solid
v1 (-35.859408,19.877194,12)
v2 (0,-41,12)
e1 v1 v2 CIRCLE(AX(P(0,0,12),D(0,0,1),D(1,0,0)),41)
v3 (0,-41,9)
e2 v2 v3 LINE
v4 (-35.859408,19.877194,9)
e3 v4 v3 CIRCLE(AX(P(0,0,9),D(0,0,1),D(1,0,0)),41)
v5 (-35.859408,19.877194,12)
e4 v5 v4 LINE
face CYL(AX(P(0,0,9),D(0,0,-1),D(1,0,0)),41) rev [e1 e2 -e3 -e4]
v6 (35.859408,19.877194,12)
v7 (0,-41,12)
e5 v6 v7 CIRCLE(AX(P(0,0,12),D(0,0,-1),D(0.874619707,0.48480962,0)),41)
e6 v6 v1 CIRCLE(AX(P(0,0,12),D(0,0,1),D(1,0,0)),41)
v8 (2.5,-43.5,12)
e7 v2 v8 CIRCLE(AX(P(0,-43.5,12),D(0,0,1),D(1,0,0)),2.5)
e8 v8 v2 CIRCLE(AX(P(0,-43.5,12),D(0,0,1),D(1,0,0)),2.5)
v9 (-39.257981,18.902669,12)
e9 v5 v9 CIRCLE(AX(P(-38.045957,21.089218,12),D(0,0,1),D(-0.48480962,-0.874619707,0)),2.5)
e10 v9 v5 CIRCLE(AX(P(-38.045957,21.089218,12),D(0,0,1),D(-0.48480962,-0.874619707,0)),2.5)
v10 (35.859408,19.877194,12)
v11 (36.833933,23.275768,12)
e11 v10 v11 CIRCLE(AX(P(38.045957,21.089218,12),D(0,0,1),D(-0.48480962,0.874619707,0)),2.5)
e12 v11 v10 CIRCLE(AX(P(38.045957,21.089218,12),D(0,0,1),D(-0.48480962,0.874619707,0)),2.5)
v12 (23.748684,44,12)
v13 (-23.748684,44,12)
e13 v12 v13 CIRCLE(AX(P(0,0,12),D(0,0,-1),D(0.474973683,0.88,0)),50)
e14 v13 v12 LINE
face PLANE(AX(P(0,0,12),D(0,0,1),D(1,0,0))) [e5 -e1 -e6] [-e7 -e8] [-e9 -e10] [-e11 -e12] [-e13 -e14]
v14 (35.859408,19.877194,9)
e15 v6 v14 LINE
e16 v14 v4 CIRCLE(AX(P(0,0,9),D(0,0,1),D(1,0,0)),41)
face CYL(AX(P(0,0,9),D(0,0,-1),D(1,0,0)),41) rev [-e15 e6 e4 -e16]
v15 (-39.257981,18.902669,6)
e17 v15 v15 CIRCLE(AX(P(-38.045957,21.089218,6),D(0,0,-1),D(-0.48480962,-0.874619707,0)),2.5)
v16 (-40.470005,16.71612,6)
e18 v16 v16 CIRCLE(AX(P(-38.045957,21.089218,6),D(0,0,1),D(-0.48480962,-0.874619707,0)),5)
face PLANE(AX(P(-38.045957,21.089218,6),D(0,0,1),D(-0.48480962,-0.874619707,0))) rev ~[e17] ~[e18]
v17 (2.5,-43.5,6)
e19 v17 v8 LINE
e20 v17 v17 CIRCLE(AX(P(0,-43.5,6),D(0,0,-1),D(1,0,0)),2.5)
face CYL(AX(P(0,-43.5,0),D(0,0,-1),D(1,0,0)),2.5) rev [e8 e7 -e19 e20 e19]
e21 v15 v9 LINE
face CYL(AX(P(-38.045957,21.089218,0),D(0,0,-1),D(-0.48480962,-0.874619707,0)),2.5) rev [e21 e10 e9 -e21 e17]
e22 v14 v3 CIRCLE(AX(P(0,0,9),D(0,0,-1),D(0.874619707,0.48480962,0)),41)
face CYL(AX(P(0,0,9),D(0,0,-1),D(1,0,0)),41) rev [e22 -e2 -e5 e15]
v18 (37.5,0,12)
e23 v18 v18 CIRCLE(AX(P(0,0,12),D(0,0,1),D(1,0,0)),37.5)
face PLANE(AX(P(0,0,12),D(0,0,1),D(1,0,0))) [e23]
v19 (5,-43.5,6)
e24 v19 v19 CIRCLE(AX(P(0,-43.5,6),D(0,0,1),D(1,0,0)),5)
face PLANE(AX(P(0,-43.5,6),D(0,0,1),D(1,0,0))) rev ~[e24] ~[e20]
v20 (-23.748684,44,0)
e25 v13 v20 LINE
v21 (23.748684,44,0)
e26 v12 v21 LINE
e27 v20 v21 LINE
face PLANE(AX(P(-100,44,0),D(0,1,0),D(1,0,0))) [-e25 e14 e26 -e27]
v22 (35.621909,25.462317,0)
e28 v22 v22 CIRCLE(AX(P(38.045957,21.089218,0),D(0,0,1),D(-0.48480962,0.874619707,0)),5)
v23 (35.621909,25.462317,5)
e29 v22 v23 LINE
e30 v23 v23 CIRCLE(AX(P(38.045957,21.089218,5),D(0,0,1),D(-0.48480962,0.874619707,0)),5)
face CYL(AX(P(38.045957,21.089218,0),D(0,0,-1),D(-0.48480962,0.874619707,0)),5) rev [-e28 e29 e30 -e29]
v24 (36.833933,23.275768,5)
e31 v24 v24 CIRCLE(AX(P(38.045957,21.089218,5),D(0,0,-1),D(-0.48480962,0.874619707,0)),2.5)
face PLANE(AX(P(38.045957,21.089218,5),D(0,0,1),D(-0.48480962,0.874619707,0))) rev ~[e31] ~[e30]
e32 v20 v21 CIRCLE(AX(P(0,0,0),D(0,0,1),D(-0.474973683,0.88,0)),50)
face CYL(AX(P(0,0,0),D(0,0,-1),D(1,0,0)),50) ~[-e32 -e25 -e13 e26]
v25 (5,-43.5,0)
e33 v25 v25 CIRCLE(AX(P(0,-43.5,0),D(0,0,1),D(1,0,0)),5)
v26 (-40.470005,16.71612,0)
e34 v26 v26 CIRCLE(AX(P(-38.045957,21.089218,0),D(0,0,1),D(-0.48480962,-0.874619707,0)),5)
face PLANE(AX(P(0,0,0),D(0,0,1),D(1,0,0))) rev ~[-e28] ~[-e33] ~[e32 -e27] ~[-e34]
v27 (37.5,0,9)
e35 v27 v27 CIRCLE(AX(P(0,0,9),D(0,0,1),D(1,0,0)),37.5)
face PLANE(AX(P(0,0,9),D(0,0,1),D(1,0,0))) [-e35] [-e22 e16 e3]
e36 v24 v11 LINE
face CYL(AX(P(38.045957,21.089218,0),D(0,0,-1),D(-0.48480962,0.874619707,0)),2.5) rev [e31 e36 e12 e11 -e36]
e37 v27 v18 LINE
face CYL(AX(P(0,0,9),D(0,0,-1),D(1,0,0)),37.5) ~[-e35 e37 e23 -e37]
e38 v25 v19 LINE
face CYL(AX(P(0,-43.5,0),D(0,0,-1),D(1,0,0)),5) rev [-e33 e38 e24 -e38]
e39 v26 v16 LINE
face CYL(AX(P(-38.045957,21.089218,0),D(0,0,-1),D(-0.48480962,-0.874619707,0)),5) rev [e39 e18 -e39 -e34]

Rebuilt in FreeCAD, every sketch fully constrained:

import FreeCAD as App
import Part
import Sketcher
from FreeCAD import Vector

doc = App.newDocument("Part")
body = doc.addObject("PartDesign::Body", "Body")

sketch1 = body.newObject("Sketcher::SketchObject", "Sketch")
sketch1.AttachmentSupport = (doc.getObject("XY_Plane"), [""])
sketch1.MapMode = "FlatFace"
sketch1.addGeometry(Part.Circle(Vector(0, -44, 0), Vector(0, 0, 1), 5), False)
sketch1.addConstraint([
    Sketcher.Constraint("PointOnObject", 0, 3, -2),
    Sketcher.Constraint("Diameter", 0, 10.0),
    Sketcher.Constraint("DistanceY", 0, 3, -1, 1, 43.5),
])
pad1 = body.newObject("PartDesign::Pad", "Pad")
pad1.Profile = sketch1
pad1.Length = 5
body2 = doc.addObject("PartDesign::Body", "Body001")
doc.recompute()

body.Placement = App.Placement(Vector(0, 0, 0), App.Rotation(Vector(0, 0, 1), 119))
boolean = body2.newObject("PartDesign::Boolean", "Boolean")
boolean.Type = "Fuse"
boolean.addObjects([body])
body3 = doc.addObject("PartDesign::Body", "Body002")

sketch2 = body3.newObject("Sketcher::SketchObject", "Sketch001")
sketch2.AttachmentSupport = (doc.getObject("XY_Plane002"), [""])
sketch2.MapMode = "FlatFace"
sketch2.addGeometry(Part.Circle(Vector(0, -44, 0), Vector(0, 0, 1), 5), False)
sketch2.addConstraint([
    Sketcher.Constraint("PointOnObject", 0, 3, -2),
    Sketcher.Constraint("Diameter", 0, 10.0),
    Sketcher.Constraint("DistanceY", 0, 3, -1, 1, 43.5),
])
pad2 = body3.newObject("PartDesign::Pad", "Pad001")
pad2.Profile = sketch2
pad2.Length = 6
body4 = doc.addObject("PartDesign::Body", "Body003")
doc.recompute()

body3.Placement = App.Placement(Vector(0, 0, 0), App.Rotation(Vector(0, 0, -1), 119))
boolean2 = body4.newObject("PartDesign::Boolean", "Boolean001")
boolean2.Type = "Fuse"
boolean2.addObjects([body3])
body5 = doc.addObject("PartDesign::Body", "Body004")
body5.AllowCompound = True

sketch3 = body5.newObject("Sketcher::SketchObject", "Sketch002")
sketch3.AttachmentSupport = (doc.getObject("XY_Plane004"), [""])
sketch3.MapMode = "FlatFace"
sketch3.addGeometry(Part.Circle(Vector(0, -44, 0), Vector(0, 0, 1), 5), False)
sketch3.addConstraint([
    Sketcher.Constraint("PointOnObject", 0, 3, -2),
    Sketcher.Constraint("Diameter", 0, 10.0),
    Sketcher.Constraint("DistanceY", 0, 3, -1, 1, 43.5),
])
pad3 = body5.newObject("PartDesign::Pad", "Pad002")
pad3.Profile = sketch3
pad3.Length = 6
doc.recompute()

boolean3 = body5.newObject("PartDesign::Boolean", "Boolean002")
boolean3.Type = "Fuse"
boolean3.addObjects([body2])
doc.recompute()

boolean4 = body5.newObject("PartDesign::Boolean", "Boolean003")
boolean4.Type = "Fuse"
boolean4.addObjects([body4])
body6 = doc.addObject("PartDesign::Body", "Body005")

sketch4 = body6.newObject("Sketcher::SketchObject", "Sketch003")
sketch4.AttachmentSupport = (doc.getObject("XY_Plane005"), [""])
sketch4.MapMode = "FlatFace"
sketch4.addGeometry(Part.Circle(Vector(0, -43.5, 0), Vector(0, 0, 1), 2.5), False)
sketch4.addConstraint([
    Sketcher.Constraint("PointOnObject", 0, 3, -2),
    Sketcher.Constraint("Diameter", 0, 5.0),
    Sketcher.Constraint("DistanceY", 0, 3, -1, 1, 43.5),
])
pad4 = body6.newObject("PartDesign::Pad", "Pad003")
pad4.Profile = sketch4
pad4.Length = 12
body7 = doc.addObject("PartDesign::Body", "Body006")
doc.recompute()

body6.Placement = App.Placement(Vector(0, 0, 0), App.Rotation(Vector(0, 0, 1), 119))
boolean5 = body7.newObject("PartDesign::Boolean", "Boolean004")
boolean5.Type = "Fuse"
boolean5.addObjects([body6])
body8 = doc.addObject("PartDesign::Body", "Body007")

sketch5 = body8.newObject("Sketcher::SketchObject", "Sketch004")
sketch5.AttachmentSupport = (doc.getObject("XY_Plane007"), [""])
sketch5.MapMode = "FlatFace"
sketch5.addGeometry(Part.Circle(Vector(0, -43.5, 0), Vector(0, 0, 1), 2.5), False)
sketch5.addConstraint([
    Sketcher.Constraint("PointOnObject", 0, 3, -2),
    Sketcher.Constraint("Diameter", 0, 5.0),
    Sketcher.Constraint("DistanceY", 0, 3, -1, 1, 43.5),
])
pad5 = body8.newObject("PartDesign::Pad", "Pad004")
pad5.Profile = sketch5
pad5.Length = 12
body9 = doc.addObject("PartDesign::Body", "Body008")
doc.recompute()

body8.Placement = App.Placement(Vector(0, 0, 0), App.Rotation(Vector(0, 0, 1), 241))
boolean6 = body9.newObject("PartDesign::Boolean", "Boolean005")
boolean6.Type = "Fuse"
boolean6.addObjects([body8])
body10 = doc.addObject("PartDesign::Body", "Body009")
body10.AllowCompound = True

sketch6 = body10.newObject("Sketcher::SketchObject", "Sketch005")
sketch6.AttachmentSupport = (doc.getObject("XY_Plane009"), [""])
sketch6.MapMode = "FlatFace"
sketch6.addGeometry(Part.Circle(Vector(0, -43.5, 0), Vector(0, 0, 1), 2.5), False)
sketch6.addConstraint([
    Sketcher.Constraint("PointOnObject", 0, 3, -2),
    Sketcher.Constraint("Diameter", 0, 5.0),
    Sketcher.Constraint("DistanceY", 0, 3, -1, 1, 43.5),
])
pad6 = body10.newObject("PartDesign::Pad", "Pad005")
pad6.Profile = sketch6
pad6.Length = 12
doc.recompute()

boolean7 = body10.newObject("PartDesign::Boolean", "Boolean006")
boolean7.Type = "Fuse"
boolean7.addObjects([body7])
doc.recompute()

boolean8 = body10.newObject("PartDesign::Boolean", "Boolean007")
boolean8.Type = "Fuse"
boolean8.addObjects([body9])
body11 = doc.addObject("PartDesign::Body", "Body010")

sketch7 = body11.newObject("Sketcher::SketchObject", "Sketch006")
sketch7.AttachmentSupport = (doc.getObject("XY_Plane010"), [""])
sketch7.MapMode = "FlatFace"
sketch7.addGeometry([
    Part.LineSegment(Vector(-100, 144, 0), Vector(-100, 44, 0)),
    Part.LineSegment(Vector(-100, 44, 0), Vector(100, 44, 0)),
    Part.LineSegment(Vector(100, 44, 0), Vector(100, 144, 0)),
    Part.LineSegment(Vector(100, 144, 0), Vector(-100, 144, 0)),
], False)
sketch7.addConstraint([
    Sketcher.Constraint("Coincident", 0, 2, 1, 1),
    Sketcher.Constraint("Coincident", 1, 2, 2, 1),
    Sketcher.Constraint("Coincident", 2, 2, 3, 1),
    Sketcher.Constraint("Coincident", 3, 2, 0, 1),
    Sketcher.Constraint("Vertical", 0),
    Sketcher.Constraint("Horizontal", 1),
    Sketcher.Constraint("Vertical", 2),
    Sketcher.Constraint("Horizontal", 3),
    Sketcher.Constraint("DistanceX", 1, 1, 1, 2, 200.0),
    Sketcher.Constraint("DistanceY", 0, 2, 0, 1, 100.0),
    Sketcher.Constraint("DistanceX", 0, 2, -1, 1, 100.0),
    Sketcher.Constraint("DistanceY", -1, 1, 0, 2, 44.0),
])
pad7 = body11.newObject("PartDesign::Pad", "Pad006")
pad7.Profile = sketch7
pad7.Length = 12
body12 = doc.addObject("PartDesign::Body", "Body011")

sketch8 = body12.newObject("Sketcher::SketchObject", "Sketch007")
sketch8.AttachmentSupport = (doc.getObject("XY_Plane011"), [""])
sketch8.MapMode = "FlatFace"
sketch8.addGeometry(Part.Circle(Vector(0, 0, 0), Vector(0, 0, 1), 38), False)
sketch8.addConstraint([
    Sketcher.Constraint("Coincident", 0, 3, -1, 1),
    Sketcher.Constraint("Diameter", 0, 75.0),
])
pad8 = body12.newObject("PartDesign::Pad", "Pad007")
pad8.Profile = sketch8
pad8.Length = 3
body13 = doc.addObject("PartDesign::Body", "Body012")

sketch9 = body13.newObject("Sketcher::SketchObject", "Sketch008")
sketch9.AttachmentSupport = (doc.getObject("XY_Plane012"), [""])
sketch9.MapMode = "FlatFace"
sketch9.addGeometry(Part.Circle(Vector(0, 0, 0), Vector(0, 0, 1), 41), False)
sketch9.addConstraint([
    Sketcher.Constraint("Coincident", 0, 3, -1, 1),
    Sketcher.Constraint("Diameter", 0, 82.0),
])
pad9 = body13.newObject("PartDesign::Pad", "Pad008")
pad9.Profile = sketch9
pad9.Length = 3
doc.recompute()

boolean9 = body13.newObject("PartDesign::Boolean", "Boolean008")
boolean9.Type = "Cut"
boolean9.addObjects([body12])
body14 = doc.addObject("PartDesign::Body", "Body013")
doc.recompute()

body13.Placement = App.Placement(Vector(0, 0, 9), App.Rotation(Vector(0, 0, 1), 0))
boolean10 = body14.newObject("PartDesign::Boolean", "Boolean009")
boolean10.Type = "Fuse"
boolean10.addObjects([body13])
body15 = doc.addObject("PartDesign::Body", "Body014")

sketch10 = body15.newObject("Sketcher::SketchObject", "Sketch009")
sketch10.AttachmentSupport = (doc.getObject("XY_Plane014"), [""])
sketch10.MapMode = "FlatFace"
sketch10.addGeometry(Part.Circle(Vector(0, 0, 0), Vector(0, 0, 1), 50), False)
sketch10.addConstraint([
    Sketcher.Constraint("Coincident", 0, 3, -1, 1),
    Sketcher.Constraint("Diameter", 0, 100.0),
])
pad10 = body15.newObject("PartDesign::Pad", "Pad009")
pad10.Profile = sketch10
pad10.Length = 12
doc.recompute()

boolean11 = body15.newObject("PartDesign::Boolean", "Boolean010")
boolean11.Type = "Cut"
boolean11.addObjects([body14])
doc.recompute()

boolean12 = body15.newObject("PartDesign::Boolean", "Boolean011")
boolean12.Type = "Cut"
boolean12.addObjects([body11])
doc.recompute()

boolean13 = body15.newObject("PartDesign::Boolean", "Boolean012")
boolean13.Type = "Cut"
boolean13.addObjects([body10])
doc.recompute()

boolean14 = body15.newObject("PartDesign::Boolean", "Boolean013")
boolean14.Type = "Cut"
boolean14.addObjects([body5])

doc.recompute()
